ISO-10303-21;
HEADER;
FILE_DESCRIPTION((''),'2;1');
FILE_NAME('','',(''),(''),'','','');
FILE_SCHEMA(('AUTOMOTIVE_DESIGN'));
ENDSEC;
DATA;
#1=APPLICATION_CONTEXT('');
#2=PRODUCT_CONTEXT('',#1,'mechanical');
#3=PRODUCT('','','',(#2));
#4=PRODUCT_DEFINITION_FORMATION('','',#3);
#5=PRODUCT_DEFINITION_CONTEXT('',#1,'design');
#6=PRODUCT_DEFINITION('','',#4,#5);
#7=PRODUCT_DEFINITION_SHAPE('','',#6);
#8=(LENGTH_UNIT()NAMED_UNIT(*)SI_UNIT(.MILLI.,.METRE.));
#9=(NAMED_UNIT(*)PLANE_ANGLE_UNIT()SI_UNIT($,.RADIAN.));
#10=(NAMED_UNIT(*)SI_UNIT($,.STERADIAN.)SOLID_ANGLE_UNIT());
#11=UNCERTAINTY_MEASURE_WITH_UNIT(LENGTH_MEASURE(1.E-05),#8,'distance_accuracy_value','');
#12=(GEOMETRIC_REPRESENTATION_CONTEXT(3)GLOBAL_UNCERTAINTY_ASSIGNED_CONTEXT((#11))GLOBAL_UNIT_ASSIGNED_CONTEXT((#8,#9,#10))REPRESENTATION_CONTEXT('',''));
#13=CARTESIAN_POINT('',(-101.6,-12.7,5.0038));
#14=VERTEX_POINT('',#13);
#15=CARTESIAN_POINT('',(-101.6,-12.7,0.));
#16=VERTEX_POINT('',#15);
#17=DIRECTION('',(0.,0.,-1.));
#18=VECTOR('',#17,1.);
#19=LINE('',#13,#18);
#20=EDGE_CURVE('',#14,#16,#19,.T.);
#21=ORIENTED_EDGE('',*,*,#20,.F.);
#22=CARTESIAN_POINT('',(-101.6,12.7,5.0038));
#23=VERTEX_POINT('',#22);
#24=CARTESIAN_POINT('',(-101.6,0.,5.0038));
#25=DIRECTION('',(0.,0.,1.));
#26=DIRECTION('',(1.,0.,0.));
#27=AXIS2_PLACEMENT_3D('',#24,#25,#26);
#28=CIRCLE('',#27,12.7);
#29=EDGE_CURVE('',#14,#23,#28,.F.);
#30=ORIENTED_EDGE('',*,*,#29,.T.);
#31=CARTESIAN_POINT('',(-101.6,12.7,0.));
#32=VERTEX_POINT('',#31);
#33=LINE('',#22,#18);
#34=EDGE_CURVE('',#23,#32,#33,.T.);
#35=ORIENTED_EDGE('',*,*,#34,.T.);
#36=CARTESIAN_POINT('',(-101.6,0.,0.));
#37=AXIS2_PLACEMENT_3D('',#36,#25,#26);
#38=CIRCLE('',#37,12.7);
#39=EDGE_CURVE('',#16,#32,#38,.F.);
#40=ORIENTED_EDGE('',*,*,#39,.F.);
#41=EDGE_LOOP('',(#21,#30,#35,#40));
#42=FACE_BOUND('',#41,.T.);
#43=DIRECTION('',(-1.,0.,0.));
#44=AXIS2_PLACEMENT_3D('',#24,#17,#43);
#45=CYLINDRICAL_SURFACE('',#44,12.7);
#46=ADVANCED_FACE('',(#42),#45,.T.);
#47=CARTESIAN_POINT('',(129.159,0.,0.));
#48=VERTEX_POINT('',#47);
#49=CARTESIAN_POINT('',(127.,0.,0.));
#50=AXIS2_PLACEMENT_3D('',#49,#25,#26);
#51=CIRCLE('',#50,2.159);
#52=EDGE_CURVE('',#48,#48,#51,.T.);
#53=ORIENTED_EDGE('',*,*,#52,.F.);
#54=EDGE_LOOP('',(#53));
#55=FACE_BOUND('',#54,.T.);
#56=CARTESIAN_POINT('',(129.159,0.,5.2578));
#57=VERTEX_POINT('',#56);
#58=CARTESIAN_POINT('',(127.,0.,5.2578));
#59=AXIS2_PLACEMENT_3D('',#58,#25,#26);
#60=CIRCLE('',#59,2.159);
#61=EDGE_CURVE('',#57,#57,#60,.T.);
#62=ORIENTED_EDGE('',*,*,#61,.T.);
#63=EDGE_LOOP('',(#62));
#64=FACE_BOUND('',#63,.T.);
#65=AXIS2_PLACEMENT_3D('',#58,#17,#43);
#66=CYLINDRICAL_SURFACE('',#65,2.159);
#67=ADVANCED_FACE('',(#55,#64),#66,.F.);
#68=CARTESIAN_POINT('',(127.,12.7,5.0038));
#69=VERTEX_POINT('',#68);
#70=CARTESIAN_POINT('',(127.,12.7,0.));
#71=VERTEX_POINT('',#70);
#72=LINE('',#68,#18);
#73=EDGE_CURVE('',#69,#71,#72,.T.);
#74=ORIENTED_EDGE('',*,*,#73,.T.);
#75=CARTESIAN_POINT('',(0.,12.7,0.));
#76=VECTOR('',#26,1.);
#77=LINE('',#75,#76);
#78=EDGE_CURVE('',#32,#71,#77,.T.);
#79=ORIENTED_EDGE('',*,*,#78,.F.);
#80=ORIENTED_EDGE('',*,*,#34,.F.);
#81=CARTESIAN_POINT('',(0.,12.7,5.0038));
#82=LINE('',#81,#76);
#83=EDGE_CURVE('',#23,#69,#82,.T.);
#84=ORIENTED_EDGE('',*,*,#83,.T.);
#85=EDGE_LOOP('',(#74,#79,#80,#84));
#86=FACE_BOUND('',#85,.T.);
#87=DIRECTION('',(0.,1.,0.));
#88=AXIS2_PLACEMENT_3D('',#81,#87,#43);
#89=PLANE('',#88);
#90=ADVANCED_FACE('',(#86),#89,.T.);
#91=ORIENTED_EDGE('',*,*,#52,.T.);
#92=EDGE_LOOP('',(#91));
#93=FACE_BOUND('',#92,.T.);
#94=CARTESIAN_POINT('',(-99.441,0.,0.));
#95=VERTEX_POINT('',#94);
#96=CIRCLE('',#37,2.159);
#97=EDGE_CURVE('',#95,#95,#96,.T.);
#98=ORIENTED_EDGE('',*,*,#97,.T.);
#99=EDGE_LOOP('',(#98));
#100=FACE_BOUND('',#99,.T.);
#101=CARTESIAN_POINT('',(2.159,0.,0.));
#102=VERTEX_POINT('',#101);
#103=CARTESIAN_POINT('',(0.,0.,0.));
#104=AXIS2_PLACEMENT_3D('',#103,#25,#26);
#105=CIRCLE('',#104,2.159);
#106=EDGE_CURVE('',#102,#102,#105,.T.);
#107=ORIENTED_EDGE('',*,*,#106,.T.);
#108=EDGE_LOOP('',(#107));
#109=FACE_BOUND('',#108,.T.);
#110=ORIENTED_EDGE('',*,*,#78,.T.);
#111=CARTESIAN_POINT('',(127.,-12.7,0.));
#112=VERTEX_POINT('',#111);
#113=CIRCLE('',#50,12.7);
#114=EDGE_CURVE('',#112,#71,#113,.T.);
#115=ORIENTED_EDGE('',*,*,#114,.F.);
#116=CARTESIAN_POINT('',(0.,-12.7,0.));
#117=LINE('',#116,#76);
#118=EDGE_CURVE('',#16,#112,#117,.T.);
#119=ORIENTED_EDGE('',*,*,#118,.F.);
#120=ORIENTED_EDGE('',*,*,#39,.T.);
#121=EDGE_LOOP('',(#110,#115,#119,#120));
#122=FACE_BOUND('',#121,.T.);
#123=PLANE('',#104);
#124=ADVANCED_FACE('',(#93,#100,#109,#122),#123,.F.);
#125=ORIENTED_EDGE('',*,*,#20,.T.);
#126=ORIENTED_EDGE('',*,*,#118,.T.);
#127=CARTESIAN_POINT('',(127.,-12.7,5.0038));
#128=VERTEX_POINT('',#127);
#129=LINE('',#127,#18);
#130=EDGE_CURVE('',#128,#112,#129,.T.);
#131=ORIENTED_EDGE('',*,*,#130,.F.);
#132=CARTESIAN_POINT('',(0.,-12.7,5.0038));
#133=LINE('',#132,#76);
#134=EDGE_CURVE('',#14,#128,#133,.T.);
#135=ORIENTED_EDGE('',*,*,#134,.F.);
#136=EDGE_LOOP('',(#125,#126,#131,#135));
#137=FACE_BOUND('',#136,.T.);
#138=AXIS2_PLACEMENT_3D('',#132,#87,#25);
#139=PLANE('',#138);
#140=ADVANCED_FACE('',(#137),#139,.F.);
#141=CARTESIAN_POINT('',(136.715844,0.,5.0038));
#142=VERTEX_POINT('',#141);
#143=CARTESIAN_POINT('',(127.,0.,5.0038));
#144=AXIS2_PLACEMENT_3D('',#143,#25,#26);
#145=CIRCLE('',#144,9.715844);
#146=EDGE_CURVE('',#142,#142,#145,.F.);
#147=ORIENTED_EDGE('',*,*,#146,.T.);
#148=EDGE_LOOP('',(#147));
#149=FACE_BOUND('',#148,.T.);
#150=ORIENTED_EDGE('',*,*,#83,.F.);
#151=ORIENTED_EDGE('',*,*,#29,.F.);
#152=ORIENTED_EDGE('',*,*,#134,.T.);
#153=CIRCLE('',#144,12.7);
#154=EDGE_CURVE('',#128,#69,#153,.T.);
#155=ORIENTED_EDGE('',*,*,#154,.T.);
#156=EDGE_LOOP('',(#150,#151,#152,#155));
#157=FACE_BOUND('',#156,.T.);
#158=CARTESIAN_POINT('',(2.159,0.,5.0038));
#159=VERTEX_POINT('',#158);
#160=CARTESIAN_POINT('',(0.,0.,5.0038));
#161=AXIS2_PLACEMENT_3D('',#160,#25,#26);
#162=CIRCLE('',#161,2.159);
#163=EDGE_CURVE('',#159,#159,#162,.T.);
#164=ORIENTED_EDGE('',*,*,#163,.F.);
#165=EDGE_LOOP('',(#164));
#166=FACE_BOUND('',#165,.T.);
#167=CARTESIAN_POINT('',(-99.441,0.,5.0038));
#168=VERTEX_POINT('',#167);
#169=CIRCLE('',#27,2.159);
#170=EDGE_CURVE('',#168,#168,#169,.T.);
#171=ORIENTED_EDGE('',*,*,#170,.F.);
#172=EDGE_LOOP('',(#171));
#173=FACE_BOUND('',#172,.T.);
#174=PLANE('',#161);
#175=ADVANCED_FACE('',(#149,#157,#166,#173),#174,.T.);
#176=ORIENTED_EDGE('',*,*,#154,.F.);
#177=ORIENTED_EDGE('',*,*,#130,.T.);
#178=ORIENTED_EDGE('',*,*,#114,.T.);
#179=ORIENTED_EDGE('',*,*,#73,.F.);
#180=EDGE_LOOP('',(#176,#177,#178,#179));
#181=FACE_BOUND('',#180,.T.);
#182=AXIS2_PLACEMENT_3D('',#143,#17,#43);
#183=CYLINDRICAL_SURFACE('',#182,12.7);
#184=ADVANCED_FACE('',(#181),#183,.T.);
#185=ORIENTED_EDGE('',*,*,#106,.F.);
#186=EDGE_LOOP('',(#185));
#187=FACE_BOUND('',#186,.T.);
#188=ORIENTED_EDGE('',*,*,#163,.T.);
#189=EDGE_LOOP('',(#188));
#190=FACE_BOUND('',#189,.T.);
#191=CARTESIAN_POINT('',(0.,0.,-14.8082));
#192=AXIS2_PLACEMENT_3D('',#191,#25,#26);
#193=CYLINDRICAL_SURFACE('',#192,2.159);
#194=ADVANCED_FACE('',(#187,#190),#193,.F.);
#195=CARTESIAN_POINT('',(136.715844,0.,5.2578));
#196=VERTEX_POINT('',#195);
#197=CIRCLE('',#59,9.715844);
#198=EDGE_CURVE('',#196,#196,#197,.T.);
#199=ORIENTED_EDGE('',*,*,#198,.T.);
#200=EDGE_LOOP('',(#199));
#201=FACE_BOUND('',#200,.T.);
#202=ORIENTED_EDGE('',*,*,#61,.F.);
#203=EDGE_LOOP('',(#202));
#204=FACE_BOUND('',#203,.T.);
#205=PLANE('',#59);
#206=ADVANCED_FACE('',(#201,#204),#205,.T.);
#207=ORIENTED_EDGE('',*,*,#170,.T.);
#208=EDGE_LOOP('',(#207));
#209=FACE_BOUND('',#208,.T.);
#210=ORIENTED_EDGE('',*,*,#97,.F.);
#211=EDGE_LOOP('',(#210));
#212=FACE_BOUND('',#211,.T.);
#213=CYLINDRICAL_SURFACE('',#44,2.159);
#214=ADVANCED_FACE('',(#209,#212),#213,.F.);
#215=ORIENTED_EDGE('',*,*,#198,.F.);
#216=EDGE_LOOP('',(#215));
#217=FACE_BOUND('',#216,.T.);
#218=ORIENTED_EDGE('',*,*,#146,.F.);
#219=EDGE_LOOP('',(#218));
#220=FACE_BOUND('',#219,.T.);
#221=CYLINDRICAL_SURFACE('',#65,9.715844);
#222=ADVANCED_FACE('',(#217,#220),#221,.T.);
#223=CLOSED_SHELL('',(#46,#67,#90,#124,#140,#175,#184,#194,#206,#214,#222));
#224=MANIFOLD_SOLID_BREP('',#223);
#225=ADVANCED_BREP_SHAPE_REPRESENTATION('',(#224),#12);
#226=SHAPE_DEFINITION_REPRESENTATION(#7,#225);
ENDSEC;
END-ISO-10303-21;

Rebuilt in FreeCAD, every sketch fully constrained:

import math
import FreeCAD as App
import Part
import Sketcher

V = App.Vector
Q = App.Units.Quantity

doc = App.newDocument("Part")
body = doc.addObject("PartDesign::Body", "Body")

# Sketch on XY plane
sketch1 = body.newObject("Sketcher::SketchObject", "Sketch")
sketch1.AttachmentSupport = (doc.getObject("XY_Plane"), [""])
sketch1.MapMode = "FlatFace"
sketch1.addGeometry(Part.LineSegment(V(127, 12.7, 0), V(-101.6, 12.7, 0)), False)
sketch1.addGeometry(Part.ArcOfCircle(Part.Circle(V(-101.6, 0, 0), V(0, 0, 1), 12.7), math.radians(90), math.radians(270)), False)
sketch1.addGeometry(Part.LineSegment(V(-101.6, -12.7, 0), V(127, -12.7, 0)), False)
sketch1.addGeometry(Part.ArcOfCircle(Part.Circle(V(127, 0, 0), V(0, 0, 1), 12.7), math.radians(-90), math.radians(90)), False)
sketch1.addGeometry(Part.Circle(V(127, 0, 0), V(0, 0, 1), 6.3), False)
sketch1.addGeometry(Part.Circle(V(-101.6, 0, 0), V(0, 0, 1), 2.2), False)
sketch1.addConstraint(Sketcher.Constraint("Tangent", 0, 2, 1, 1))
sketch1.addConstraint(Sketcher.Constraint("Tangent", 1, 2, 2, 1))
sketch1.addConstraint(Sketcher.Constraint("Tangent", 2, 2, 3, 1))
sketch1.addConstraint(Sketcher.Constraint("Tangent", 3, 2, 0, 1))
sketch1.addConstraint(Sketcher.Constraint("Horizontal", 0))
sketch1.addConstraint(Sketcher.Constraint("Horizontal", 2))
sketch1.addConstraint(Sketcher.Constraint("Coincident", 4, 3, 3, 3))
sketch1.addConstraint(Sketcher.Constraint("Coincident", 5, 3, 1, 3))
sketch1.addConstraint(Sketcher.Constraint("PointOnObject", 1, 3, -1))
sketch1.addConstraint(Sketcher.Constraint("Diameter", 4, Q("0.5 in")))
sketch1.addConstraint(Sketcher.Constraint("Radius", 1, Q("0.5 in")))
sketch1.addConstraint(Sketcher.Constraint("Diameter", 5, Q("0.17 in")))
sketch1.addConstraint(Sketcher.Constraint("DistanceX", 0, 2, 0, 1, Q("9 in")))
sketch1.addConstraint(Sketcher.Constraint("DistanceX", 1, 3, -1, 1, Q("4 in")))
pad1 = body.newObject("PartDesign::Pad", "Pad")
pad1.Profile = sketch1
pad1.Length = Q("0.197 in")

# Sketch on XY plane
sketch2 = body.newObject("Sketcher::SketchObject", "Sketch001")
sketch2.AttachmentSupport = (doc.getObject("XY_Plane"), [""])
sketch2.MapMode = "FlatFace"
sketch2.AttachmentOffset = App.Placement(V(0, 0, 0.197 * 25.4), App.Rotation())
sketch2.addGeometry(Part.Circle(V(127, 0, 0), V(0, 0, 1), 9.7), False)
sketch2.addGeometry(Part.Circle(V(127, 0, 0), V(0, 0, 1), 2.2), False)
sketch2.addConstraint(Sketcher.Constraint("Coincident", 1, 3, 0, 3))
sketch2.addConstraint(Sketcher.Constraint("PointOnObject", 0, 3, -1))
sketch2.addConstraint(Sketcher.Constraint("Diameter", 1, Q("0.17 in")))
sketch2.addConstraint(Sketcher.Constraint("DistanceX", -1, 1, 0, 3, Q("5 in")))
sketch2.addConstraint(Sketcher.Constraint("Diameter", 0, Q("19.431687 mm")))
pad2 = body.newObject("PartDesign::Pad", "Pad001")
pad2.Profile = sketch2
pad2.Type = "TwoLengths"
pad2.Length = Q("0.01 in")
pad2.Length2 = Q("0.197 in")

# Sketch on XY plane
sketch3 = body.newObject("Sketcher::SketchObject", "Sketch002")
sketch3.AttachmentSupport = (doc.getObject("XY_Plane"), [""])
sketch3.MapMode = "FlatFace"
sketch3.AttachmentOffset = App.Placement(V(0, 0, 0.197 * 25.4), App.Rotation())
sketch3.addGeometry(Part.Circle(V(0, 0, 0), V(0, 0, 1), 2.2), False)
sketch3.addConstraint(Sketcher.Constraint("Coincident", 0, 3, -1, 1))
sketch3.addConstraint(Sketcher.Constraint("Diameter", 0, Q("0.17 in")))
pocket1 = body.newObject("PartDesign::Pocket", "Pocket")
pocket1.Profile = sketch3
pocket1.Length = Q("0.78 in")

doc.recompute()
